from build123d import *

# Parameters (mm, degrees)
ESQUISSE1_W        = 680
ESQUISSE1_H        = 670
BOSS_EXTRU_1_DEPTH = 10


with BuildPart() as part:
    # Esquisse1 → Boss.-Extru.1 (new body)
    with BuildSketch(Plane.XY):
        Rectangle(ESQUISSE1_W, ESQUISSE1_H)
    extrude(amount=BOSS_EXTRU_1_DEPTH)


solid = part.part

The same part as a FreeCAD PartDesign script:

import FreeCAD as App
import Part
import Sketcher

V = App.Vector
Q = App.Units.Quantity

doc = App.newDocument("Part")
params = doc.addObject("Spreadsheet::Sheet", "Params")
for row, (alias, value) in enumerate([
    ("sketch1_width", "680 mm"),
    ("sketch1_height", "670 mm"),
    ("pad1_length", "10 mm"),
], start=1):
    params.set(f"A{row}", alias)
    params.set(f"B{row}", "=" + value)
    params.setAlias(f"B{row}", alias)

body = doc.addObject("PartDesign::Body", "Body")

# Sketch on XY plane
sketch1 = body.newObject("Sketcher::SketchObject", "Sketch")
sketch1.AttachmentSupport = (doc.getObject("XY_Plane"), [""])
sketch1.MapMode = "FlatFace"
sketch1.addGeometry([
    Part.LineSegment(V(-340, 335, 0), V(-340, -335, 0)),
    Part.LineSegment(V(-340, -335, 0), V(340, -335, 0)),
    Part.LineSegment(V(340, -335, 0), V(340, 335, 0)),
    Part.LineSegment(V(340, 335, 0), V(-340, 335, 0)),
], False)
sketch1.addConstraint([
    Sketcher.Constraint("Coincident", 0, 2, 1, 1),
    Sketcher.Constraint("Coincident", 1, 2, 2, 1),
    Sketcher.Constraint("Coincident", 2, 2, 3, 1),
    Sketcher.Constraint("Coincident", 3, 2, 0, 1),
    Sketcher.Constraint("Vertical", 0),
    Sketcher.Constraint("Horizontal", 1),
    Sketcher.Constraint("Vertical", 2),
    Sketcher.Constraint("Horizontal", 3),
    Sketcher.Constraint("Symmetric", 0, 2, 2, 2, -1, 1),
    Sketcher.Constraint("DistanceX", 1, 1, 1, 2, Q("680 mm")),
    Sketcher.Constraint("DistanceY", 0, 2, 0, 1, Q("670 mm")),
])
sketch1.setExpression("Constraints[9]", "Params.sketch1_width")
sketch1.setExpression("Constraints[10]", "Params.sketch1_height")
pad1 = body.newObject("PartDesign::Pad", "Pad")
pad1.Profile = sketch1
pad1.setExpression("Length", "Params.pad1_length")

doc.recompute()
